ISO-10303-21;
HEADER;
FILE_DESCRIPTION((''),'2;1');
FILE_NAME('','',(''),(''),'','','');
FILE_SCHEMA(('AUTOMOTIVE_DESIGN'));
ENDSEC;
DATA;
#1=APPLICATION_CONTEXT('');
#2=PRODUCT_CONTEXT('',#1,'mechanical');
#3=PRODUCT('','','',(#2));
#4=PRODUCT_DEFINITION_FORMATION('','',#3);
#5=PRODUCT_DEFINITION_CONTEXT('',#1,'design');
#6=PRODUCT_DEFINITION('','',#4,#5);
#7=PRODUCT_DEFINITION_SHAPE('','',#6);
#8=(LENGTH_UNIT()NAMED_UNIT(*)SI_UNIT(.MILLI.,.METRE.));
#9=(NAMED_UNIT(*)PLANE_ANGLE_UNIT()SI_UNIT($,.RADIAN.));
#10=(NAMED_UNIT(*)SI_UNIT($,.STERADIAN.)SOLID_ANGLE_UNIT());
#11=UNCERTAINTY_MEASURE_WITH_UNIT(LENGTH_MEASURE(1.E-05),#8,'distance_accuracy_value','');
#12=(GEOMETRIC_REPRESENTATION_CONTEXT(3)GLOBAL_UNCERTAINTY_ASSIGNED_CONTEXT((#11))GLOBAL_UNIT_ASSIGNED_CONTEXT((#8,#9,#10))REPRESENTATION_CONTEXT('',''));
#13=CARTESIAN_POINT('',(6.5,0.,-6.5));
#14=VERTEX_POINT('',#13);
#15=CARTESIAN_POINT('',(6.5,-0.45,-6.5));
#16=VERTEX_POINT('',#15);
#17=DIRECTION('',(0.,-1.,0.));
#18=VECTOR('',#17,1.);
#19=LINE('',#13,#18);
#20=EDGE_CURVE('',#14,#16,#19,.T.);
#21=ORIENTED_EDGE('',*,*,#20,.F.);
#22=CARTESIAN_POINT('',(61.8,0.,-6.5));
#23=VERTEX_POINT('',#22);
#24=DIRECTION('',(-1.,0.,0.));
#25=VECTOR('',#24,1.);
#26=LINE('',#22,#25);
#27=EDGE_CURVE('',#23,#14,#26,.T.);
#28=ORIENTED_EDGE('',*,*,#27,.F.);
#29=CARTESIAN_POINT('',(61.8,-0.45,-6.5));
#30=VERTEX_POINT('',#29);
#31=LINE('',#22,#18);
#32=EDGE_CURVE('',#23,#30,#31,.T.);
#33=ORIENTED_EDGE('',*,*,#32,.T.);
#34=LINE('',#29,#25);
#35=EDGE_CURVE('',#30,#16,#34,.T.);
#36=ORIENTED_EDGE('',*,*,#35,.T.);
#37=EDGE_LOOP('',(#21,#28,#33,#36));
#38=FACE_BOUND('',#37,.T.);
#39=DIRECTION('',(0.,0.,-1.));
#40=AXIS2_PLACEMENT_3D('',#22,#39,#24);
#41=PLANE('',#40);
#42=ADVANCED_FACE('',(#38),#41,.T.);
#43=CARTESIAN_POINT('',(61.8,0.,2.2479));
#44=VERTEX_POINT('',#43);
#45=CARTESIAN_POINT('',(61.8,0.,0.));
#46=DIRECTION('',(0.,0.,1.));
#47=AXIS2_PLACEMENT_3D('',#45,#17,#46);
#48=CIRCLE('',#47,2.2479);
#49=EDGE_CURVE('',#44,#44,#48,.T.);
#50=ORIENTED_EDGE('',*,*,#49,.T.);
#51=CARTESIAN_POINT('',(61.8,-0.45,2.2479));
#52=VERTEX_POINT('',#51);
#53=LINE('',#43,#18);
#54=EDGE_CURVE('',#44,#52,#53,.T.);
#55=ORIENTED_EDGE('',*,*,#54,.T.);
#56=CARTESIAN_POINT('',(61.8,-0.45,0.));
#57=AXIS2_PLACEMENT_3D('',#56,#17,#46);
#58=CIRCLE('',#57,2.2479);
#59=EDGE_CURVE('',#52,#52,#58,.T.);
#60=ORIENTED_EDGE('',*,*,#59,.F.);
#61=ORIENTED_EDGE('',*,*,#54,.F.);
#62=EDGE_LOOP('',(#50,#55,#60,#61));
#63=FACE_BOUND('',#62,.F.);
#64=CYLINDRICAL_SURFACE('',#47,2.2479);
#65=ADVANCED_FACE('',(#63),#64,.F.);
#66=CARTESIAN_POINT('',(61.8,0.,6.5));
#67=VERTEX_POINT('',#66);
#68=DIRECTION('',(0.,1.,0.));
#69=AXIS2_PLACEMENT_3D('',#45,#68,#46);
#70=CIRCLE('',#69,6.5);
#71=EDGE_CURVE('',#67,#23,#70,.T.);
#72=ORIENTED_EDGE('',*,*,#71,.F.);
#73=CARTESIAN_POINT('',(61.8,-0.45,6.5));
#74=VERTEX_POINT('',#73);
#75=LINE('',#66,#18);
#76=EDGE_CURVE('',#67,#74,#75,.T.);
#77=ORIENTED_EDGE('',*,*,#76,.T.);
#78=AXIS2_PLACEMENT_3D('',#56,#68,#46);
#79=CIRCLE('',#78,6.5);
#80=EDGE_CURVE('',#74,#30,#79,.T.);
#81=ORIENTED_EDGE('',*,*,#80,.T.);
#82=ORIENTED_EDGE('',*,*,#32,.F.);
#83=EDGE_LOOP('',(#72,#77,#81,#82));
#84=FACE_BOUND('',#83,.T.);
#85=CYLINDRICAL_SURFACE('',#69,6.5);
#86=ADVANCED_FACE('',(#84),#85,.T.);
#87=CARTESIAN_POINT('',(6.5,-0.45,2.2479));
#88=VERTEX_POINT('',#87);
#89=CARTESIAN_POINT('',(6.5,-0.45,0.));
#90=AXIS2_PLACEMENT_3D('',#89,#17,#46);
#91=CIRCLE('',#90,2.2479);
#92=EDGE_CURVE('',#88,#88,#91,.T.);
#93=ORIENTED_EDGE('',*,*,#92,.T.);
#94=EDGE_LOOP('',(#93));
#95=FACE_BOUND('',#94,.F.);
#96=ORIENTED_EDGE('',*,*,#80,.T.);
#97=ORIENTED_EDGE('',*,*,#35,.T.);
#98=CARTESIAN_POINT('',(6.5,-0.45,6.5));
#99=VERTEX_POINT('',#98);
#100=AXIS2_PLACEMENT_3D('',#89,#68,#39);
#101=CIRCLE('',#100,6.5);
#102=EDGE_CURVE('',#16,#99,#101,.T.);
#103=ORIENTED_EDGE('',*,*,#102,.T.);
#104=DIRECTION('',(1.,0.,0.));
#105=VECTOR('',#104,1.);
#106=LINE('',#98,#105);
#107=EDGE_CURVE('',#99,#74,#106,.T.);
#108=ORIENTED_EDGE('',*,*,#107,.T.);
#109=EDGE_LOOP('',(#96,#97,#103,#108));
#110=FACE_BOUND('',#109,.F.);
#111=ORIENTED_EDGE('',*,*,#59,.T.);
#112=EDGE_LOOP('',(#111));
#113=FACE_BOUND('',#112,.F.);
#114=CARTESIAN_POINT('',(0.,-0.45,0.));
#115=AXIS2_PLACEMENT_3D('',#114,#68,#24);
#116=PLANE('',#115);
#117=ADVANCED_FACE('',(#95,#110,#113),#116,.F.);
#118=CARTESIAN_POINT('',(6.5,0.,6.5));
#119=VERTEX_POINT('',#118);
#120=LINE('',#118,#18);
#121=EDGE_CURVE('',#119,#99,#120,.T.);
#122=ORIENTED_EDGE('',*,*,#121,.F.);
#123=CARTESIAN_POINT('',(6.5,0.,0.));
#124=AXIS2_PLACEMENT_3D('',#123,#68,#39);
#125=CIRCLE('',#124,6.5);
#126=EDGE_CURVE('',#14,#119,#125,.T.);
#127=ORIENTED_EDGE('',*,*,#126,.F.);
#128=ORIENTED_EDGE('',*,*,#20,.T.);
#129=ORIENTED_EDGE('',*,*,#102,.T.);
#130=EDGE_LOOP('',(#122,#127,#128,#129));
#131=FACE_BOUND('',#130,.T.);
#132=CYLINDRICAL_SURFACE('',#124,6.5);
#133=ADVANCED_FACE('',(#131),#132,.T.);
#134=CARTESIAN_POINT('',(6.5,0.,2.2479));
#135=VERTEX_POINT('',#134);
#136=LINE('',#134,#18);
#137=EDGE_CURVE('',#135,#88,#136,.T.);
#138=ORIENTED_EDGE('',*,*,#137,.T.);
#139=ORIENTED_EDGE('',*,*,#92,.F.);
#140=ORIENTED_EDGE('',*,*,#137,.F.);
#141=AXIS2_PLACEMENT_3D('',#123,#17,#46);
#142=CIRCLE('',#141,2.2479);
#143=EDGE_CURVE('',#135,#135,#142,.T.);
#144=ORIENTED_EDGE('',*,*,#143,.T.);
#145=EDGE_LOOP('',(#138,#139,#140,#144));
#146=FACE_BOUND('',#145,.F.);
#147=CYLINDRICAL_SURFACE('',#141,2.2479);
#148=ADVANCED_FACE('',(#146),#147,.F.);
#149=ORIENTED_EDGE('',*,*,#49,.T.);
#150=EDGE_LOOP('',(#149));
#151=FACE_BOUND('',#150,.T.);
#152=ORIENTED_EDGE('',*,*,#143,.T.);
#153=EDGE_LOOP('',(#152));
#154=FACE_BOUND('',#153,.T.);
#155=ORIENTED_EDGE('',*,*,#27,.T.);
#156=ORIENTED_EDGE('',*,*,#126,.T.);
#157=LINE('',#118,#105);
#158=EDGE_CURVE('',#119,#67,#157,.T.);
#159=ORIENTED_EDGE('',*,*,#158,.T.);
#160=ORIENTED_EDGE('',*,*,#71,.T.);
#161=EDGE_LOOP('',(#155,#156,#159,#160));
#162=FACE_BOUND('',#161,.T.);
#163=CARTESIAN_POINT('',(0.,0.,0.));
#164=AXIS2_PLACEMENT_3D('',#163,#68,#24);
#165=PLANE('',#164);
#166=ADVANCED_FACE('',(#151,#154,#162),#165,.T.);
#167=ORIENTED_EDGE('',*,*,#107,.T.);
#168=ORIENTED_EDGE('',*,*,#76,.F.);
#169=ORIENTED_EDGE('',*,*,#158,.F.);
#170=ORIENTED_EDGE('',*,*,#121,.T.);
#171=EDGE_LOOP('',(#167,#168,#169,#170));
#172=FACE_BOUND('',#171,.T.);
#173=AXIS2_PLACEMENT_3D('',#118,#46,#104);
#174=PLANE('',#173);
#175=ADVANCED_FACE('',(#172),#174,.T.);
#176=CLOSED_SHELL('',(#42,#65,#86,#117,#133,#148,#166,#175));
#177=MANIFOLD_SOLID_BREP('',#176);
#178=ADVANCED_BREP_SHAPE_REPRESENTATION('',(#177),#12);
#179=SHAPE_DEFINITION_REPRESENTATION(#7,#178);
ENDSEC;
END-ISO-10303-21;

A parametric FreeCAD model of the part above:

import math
import FreeCAD as App
import Part
import Sketcher
from FreeCAD import Vector

doc = App.newDocument("Part")
body = doc.addObject("PartDesign::Body", "Body")

# Sketch on XZ plane
sketch1 = body.newObject("Sketcher::SketchObject", "Sketch")
sketch1.AttachmentSupport = (doc.getObject("XZ_Plane"), [""])
sketch1.MapMode = "FlatFace"
sketch1.addGeometry([
    Part.ArcOfCircle(Part.Circle(Vector(6.5, 0, 0), Vector(0, 0, 1), 6.5), math.radians(90), math.radians(270)),
    Part.LineSegment(Vector(6.5, 6.5, 0), Vector(61.8, 6.5, 0)),
    Part.ArcOfCircle(Part.Circle(Vector(61.8, 0, 0), Vector(0, 0, 1), 6.5), math.radians(-90), math.radians(90)),
    Part.LineSegment(Vector(61.8, -6.5, 0), Vector(6.5, -6.5, 0)),
], False)
sketch1.addConstraint([
    Sketcher.Constraint("Tangent", 0, 1, 1, 1),
    Sketcher.Constraint("Tangent", 1, 2, 2, 2),
    Sketcher.Constraint("Tangent", 2, 1, 3, 1),
    Sketcher.Constraint("Tangent", 3, 2, 0, 2),
    Sketcher.Constraint("Horizontal", 1),
    Sketcher.Constraint("Horizontal", 3),
    Sketcher.Constraint("PointOnObject", 0, 3, -1),
    Sketcher.Constraint("Radius", 0, 6.5),
    Sketcher.Constraint("DistanceX", 1, 1, 1, 2, 55.3),
    Sketcher.Constraint("DistanceX", -1, 1, 0, 3, 6.5),
])
pad1 = body.newObject("PartDesign::Pad", "Pad")
pad1.Profile = sketch1
pad1.Length = 0.45

# Sketch on XZ plane
sketch2 = body.newObject("Sketcher::SketchObject", "Sketch001")
sketch2.AttachmentSupport = (doc.getObject("XZ_Plane"), [""])
sketch2.MapMode = "FlatFace"
sketch2.addGeometry([
    Part.Circle(Vector(6.5, 0, 0), Vector(0, 0, 1), 2.2479),
    Part.Circle(Vector(61.8, 0, 0), Vector(0, 0, 1), 2.2479),
], False)
sketch2.addConstraint([
    Sketcher.Constraint("Equal", 0, 1),
    Sketcher.Constraint("PointOnObject", 0, 3, -1),
    Sketcher.Constraint("PointOnObject", 1, 3, -1),
    Sketcher.Constraint("Diameter", 0, 4.4958),
    Sketcher.Constraint("DistanceX", -1, 1, 0, 3, 6.5),
    Sketcher.Constraint("DistanceX", -1, 1, 1, 3, 61.8),
])
doc.recompute()
hole = body.newObject("PartDesign::Hole", "Hole")
hole.Profile = sketch2
hole.ThreadType = "None"
hole.Diameter = 4.4958
hole.DepthType = "ThroughAll"
hole.Reversed = True

doc.recompute()
